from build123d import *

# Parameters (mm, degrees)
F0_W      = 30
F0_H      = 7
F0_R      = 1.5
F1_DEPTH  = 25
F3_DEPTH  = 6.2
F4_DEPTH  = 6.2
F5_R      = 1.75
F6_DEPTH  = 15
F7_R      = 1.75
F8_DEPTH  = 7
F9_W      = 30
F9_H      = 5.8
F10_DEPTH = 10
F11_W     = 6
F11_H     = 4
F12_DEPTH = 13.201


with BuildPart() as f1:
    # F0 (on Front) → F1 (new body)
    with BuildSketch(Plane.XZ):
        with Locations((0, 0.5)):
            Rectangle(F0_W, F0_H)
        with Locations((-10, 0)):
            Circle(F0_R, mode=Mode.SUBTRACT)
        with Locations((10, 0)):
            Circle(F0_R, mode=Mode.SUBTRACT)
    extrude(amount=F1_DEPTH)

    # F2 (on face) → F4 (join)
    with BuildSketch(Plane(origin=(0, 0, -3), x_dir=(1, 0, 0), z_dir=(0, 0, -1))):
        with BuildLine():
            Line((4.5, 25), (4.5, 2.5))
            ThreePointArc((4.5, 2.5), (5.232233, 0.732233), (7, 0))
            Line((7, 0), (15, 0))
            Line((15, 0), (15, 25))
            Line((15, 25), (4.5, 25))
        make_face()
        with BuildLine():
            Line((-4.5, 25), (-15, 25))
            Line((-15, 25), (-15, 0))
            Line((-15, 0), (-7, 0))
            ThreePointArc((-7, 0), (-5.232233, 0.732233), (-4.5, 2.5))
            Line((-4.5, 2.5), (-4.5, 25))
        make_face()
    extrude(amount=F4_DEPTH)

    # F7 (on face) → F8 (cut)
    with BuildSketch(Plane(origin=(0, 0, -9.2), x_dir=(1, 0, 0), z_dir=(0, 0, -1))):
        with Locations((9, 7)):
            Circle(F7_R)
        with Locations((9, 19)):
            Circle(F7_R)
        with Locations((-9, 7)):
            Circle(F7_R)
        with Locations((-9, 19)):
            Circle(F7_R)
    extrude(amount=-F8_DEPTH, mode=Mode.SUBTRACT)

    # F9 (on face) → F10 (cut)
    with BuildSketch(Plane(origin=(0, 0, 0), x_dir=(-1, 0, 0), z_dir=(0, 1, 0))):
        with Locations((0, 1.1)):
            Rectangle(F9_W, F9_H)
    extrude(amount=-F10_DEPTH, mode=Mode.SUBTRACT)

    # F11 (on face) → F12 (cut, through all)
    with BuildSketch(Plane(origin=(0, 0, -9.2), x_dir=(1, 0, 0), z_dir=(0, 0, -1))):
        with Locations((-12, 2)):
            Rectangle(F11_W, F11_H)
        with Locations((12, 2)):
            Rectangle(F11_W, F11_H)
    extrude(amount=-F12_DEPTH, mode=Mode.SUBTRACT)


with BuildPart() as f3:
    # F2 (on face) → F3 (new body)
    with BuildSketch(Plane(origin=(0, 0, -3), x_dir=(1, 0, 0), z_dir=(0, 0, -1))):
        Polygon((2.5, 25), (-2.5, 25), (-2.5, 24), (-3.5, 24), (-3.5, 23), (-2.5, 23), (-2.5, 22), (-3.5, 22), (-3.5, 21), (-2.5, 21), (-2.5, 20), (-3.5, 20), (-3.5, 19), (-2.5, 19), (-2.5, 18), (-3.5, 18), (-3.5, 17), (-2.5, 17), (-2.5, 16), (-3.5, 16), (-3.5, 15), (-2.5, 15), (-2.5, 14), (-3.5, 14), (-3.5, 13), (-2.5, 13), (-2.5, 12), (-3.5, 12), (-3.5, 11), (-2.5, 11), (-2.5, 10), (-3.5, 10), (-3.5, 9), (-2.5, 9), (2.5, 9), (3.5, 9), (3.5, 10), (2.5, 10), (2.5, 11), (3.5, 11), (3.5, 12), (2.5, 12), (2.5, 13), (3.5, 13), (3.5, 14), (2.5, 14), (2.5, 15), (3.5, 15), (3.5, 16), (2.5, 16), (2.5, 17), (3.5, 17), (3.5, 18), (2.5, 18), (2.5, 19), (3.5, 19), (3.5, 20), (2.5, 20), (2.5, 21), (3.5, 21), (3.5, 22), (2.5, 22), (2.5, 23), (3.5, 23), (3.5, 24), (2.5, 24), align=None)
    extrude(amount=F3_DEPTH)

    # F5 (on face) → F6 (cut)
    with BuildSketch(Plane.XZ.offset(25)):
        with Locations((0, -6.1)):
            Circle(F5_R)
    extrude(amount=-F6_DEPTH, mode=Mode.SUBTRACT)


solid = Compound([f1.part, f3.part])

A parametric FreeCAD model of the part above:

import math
import FreeCAD as App
import Part
import Sketcher
from FreeCAD import Vector


def add_polygon(sketch, points):
    """Adds a closed chain of lines whose ends are joined by coincident constraints."""
    first, n = sketch.GeometryCount, len(points)
    for a, b in zip(points, points[1:] + points[:1]):
        sketch.addGeometry(Part.LineSegment(App.Vector(*a, 0), App.Vector(*b, 0)), False)
    for i in range(n):
        sketch.addConstraint(Sketcher.Constraint("Coincident", first + i, 2, first + (i + 1) % n, 1))

doc = App.newDocument("Part")
params = doc.addObject("Spreadsheet::Sheet", "Params")
for row, (alias, value) in enumerate([
    ("sketch1_diameter", "3 mm"),
    ("sketch1_width", "30 mm"),
    ("sketch1_height", "7 mm"),
    ("pad1_length", "25 mm"),
    ("sketch2_radius", "2.5 mm"),
    ("sketch2_width", "8 mm"),
    ("sketch2_height", "25 mm"),
    ("pad2_length", "6.2 mm"),
    ("sketch3_diameter", "3.5 mm"),
    ("pocket1_length", "7 mm"),
    ("sketch4_width", "30 mm"),
    ("sketch4_height", "5.8 mm"),
    ("pocket2_length", "10 mm"),
    ("sketch5_width", "6 mm"),
    ("sketch5_height", "4 mm"),
    ("sketch6_width", "5 mm"),
    ("sketch6_width2", "1 mm"),
    ("pad3_length", "6.2 mm"),
    ("sketch7_diameter", "3.5 mm"),
    ("pocket4_length", "15 mm"),
], start=1):
    params.set(f"A{row}", alias)
    params.set(f"B{row}", "=" + value)
    params.setAlias(f"B{row}", alias)

body = doc.addObject("PartDesign::Body", "Body")

sketch1 = body.newObject("Sketcher::SketchObject", "Sketch")
sketch1.AttachmentSupport = (doc.getObject("XZ_Plane"), [""])
sketch1.MapMode = "FlatFace"
add_polygon(sketch1, [(-15, 4), (-15, -3), (15, -3), (15, 4)])
sketch1.addGeometry(Part.Circle(Vector(-10, 0, 0), Vector(0, 0, 1), 1.5), False)
sketch1.addGeometry(Part.Circle(Vector(10, 0, 0), Vector(0, 0, 1), 1.5), False)
sketch1.addConstraint([
    Sketcher.Constraint("Vertical", 0),
    Sketcher.Constraint("Horizontal", 1),
    Sketcher.Constraint("Vertical", 2),
    Sketcher.Constraint("Horizontal", 3),
    Sketcher.Constraint("Equal", 4, 5),
    Sketcher.Constraint("Symmetric", 4, 3, 5, 3, -1, 1),
    Sketcher.Constraint("PointOnObject", 4, 3, -1),
    Sketcher.Constraint("Diameter", 4, 3.0),
    Sketcher.Constraint("DistanceX", 1, 1, 1, 2, 30.0),
    Sketcher.Constraint("DistanceY", 0, 2, 0, 1, 7.0),
    Sketcher.Constraint("DistanceX", 4, 3, -1, 1, 10.0),
    Sketcher.Constraint("DistanceX", 0, 2, -1, 1, 15.0),
    Sketcher.Constraint("DistanceY", 0, 2, -1, 1, 3.0),
])
sketch1.setExpression("Constraints[11]", "Params.sketch1_diameter")
sketch1.setExpression("Constraints[12]", "Params.sketch1_width")
sketch1.setExpression("Constraints[13]", "Params.sketch1_height")
pad1 = body.newObject("PartDesign::Pad", "Pad")
pad1.Profile = sketch1
pad1.setExpression("Length", "Params.pad1_length")

sketch2 = body.newObject("Sketcher::SketchObject", "Sketch001")
sketch2.AttachmentSupport = (doc.getObject("XY_Plane"), [""])
sketch2.MapMode = "FlatFace"
sketch2.AttachmentOffset = App.Placement(Vector(0, 0, -3), App.Rotation())
sketch2.addGeometry([
    Part.LineSegment(Vector(4.5, -25, 0), Vector(4.5, -2.5, 0)),
    Part.ArcOfCircle(Part.Circle(Vector(7, -2.5, 0), Vector(0, 0, 1), 2.5), math.radians(90), math.radians(180)),
    Part.LineSegment(Vector(7, 0, 0), Vector(15, 0, 0)),
    Part.LineSegment(Vector(15, 0, 0), Vector(15, -25, 0)),
    Part.LineSegment(Vector(15, -25, 0), Vector(4.5, -25, 0)),
    Part.LineSegment(Vector(-4.5, -25, 0), Vector(-15, -25, 0)),
    Part.LineSegment(Vector(-15, -25, 0), Vector(-15, 0, 0)),
    Part.LineSegment(Vector(-15, 0, 0), Vector(-7, 0, 0)),
    Part.ArcOfCircle(Part.Circle(Vector(-7, -2.5, 0), Vector(0, 0, 1), 2.5), math.radians(0), math.radians(90)),
    Part.LineSegment(Vector(-4.5, -2.5, 0), Vector(-4.5, -25, 0)),
], False)
sketch2.addConstraint([
    Sketcher.Constraint("Tangent", 0, 2, 1, 2),
    Sketcher.Constraint("Tangent", 1, 1, 2, 1),
    Sketcher.Constraint("Coincident", 2, 2, 3, 1),
    Sketcher.Constraint("Coincident", 3, 2, 4, 1),
    Sketcher.Constraint("Coincident", 4, 2, 0, 1),
    Sketcher.Constraint("Coincident", 5, 2, 6, 1),
    Sketcher.Constraint("Coincident", 6, 2, 7, 1),
    Sketcher.Constraint("Tangent", 7, 2, 8, 2),
    Sketcher.Constraint("Tangent", 8, 1, 9, 1),
    Sketcher.Constraint("Coincident", 9, 2, 5, 1),
    Sketcher.Constraint("Vertical", 0),
    Sketcher.Constraint("Horizontal", 2),
    Sketcher.Constraint("Vertical", 3),
    Sketcher.Constraint("Horizontal", 4),
    Sketcher.Constraint("Horizontal", 5),
    Sketcher.Constraint("Vertical", 6),
    Sketcher.Constraint("Horizontal", 7),
    Sketcher.Constraint("Vertical", 9),
    Sketcher.Constraint("Equal", 1, 8),
    Sketcher.Constraint("Symmetric", 2, 2, 6, 2, -1, 1),
    Sketcher.Constraint("Symmetric", 1, 3, 8, 3, -2),
    Sketcher.Constraint("Horizontal", 4, 2, 5, 2),
    Sketcher.Constraint("Radius", 1, 2.5),
    Sketcher.Constraint("DistanceX", 2, 1, 2, 2, 8.0),
    Sketcher.Constraint("DistanceY", 3, 2, 3, 1, 25.0),
    Sketcher.Constraint("DistanceX", -1, 1, 1, 3, 7.0),
])
sketch2.setExpression("Constraints[22]", "Params.sketch2_radius")
sketch2.setExpression("Constraints[23]", "Params.sketch2_width")
sketch2.setExpression("Constraints[24]", "Params.sketch2_height")
pad2 = body.newObject("PartDesign::Pad", "Pad001")
pad2.Profile = sketch2
pad2.setExpression("Length", "Params.pad2_length")
pad2.Reversed = True

sketch3 = body.newObject("Sketcher::SketchObject", "Sketch002")
sketch3.AttachmentSupport = (doc.getObject("XY_Plane"), [""])
sketch3.MapMode = "FlatFace"
sketch3.AttachmentOffset = App.Placement(Vector(0, 0, -9.2), App.Rotation())
sketch3.addGeometry([
    Part.Circle(Vector(9, -7, 0), Vector(0, 0, 1), 1.8),
    Part.Circle(Vector(9, -19, 0), Vector(0, 0, 1), 1.8),
    Part.Circle(Vector(-9, -7, 0), Vector(0, 0, 1), 1.8),
    Part.Circle(Vector(-9, -19, 0), Vector(0, 0, 1), 1.8),
], False)
sketch3.addConstraint([
    Sketcher.Constraint("Equal", 0, 1),
    Sketcher.Constraint("Equal", 1, 2),
    Sketcher.Constraint("Equal", 2, 3),
    Sketcher.Constraint("Symmetric", 0, 3, 2, 3, -2),
    Sketcher.Constraint("Symmetric", 1, 3, 3, 3, -2),
    Sketcher.Constraint("Vertical", 0, 3, 1, 3),
    Sketcher.Constraint("Diameter", 0, 3.5),
    Sketcher.Constraint("DistanceX", -1, 1, 0, 3, 9.0),
    Sketcher.Constraint("DistanceY", 0, 3, -1, 1, 7.0),
    Sketcher.Constraint("DistanceY", 1, 3, -1, 1, 19.0),
])
sketch3.setExpression("Constraints[6]", "Params.sketch3_diameter")
pocket1 = body.newObject("PartDesign::Pocket", "Pocket")
pocket1.Profile = sketch3
pocket1.setExpression("Length", "Params.pocket1_length")
pocket1.Reversed = True

sketch4 = body.newObject("Sketcher::SketchObject", "Sketch003")
sketch4.AttachmentSupport = (doc.getObject("XZ_Plane"), [""])
sketch4.MapMode = "FlatFace"
add_polygon(sketch4, [(15, 4), (15, -2), (-15, -2), (-15, 4)])
sketch4.addConstraint([
    Sketcher.Constraint("Vertical", 0),
    Sketcher.Constraint("Horizontal", 1),
    Sketcher.Constraint("Vertical", 2),
    Sketcher.Constraint("Horizontal", 3),
    Sketcher.Constraint("DistanceX", 1, 2, 1, 1, 30.0),
    Sketcher.Constraint("DistanceY", 0, 2, 0, 1, 5.8),
    Sketcher.Constraint("DistanceX", -1, 1, 0, 2, 15.0),
    Sketcher.Constraint("DistanceY", -1, 1, 2, 2, 4.0),
])
sketch4.setExpression("Constraints[8]", "Params.sketch4_width")
sketch4.setExpression("Constraints[9]", "Params.sketch4_height")
pocket2 = body.newObject("PartDesign::Pocket", "Pocket001")
pocket2.Profile = sketch4
pocket2.setExpression("Length", "Params.pocket2_length")
pocket2.Reversed = True

sketch5 = body.newObject("Sketcher::SketchObject", "Sketch004")
sketch5.AttachmentSupport = (doc.getObject("XY_Plane"), [""])
sketch5.MapMode = "FlatFace"
sketch5.AttachmentOffset = App.Placement(Vector(0, 0, -9.2), App.Rotation())
add_polygon(sketch5, [(-15, -4), (-15, 0), (-9, 0), (-9, -4)])
add_polygon(sketch5, [(9, -4), (9, 0), (15, 0), (15, -4)])
sketch5.addConstraint([
    Sketcher.Constraint("Vertical", 0),
    Sketcher.Constraint("Horizontal", 1),
    Sketcher.Constraint("Vertical", 2),
    Sketcher.Constraint("Horizontal", 3),
    Sketcher.Constraint("Vertical", 4),
    Sketcher.Constraint("Horizontal", 5),
    Sketcher.Constraint("Vertical", 6),
    Sketcher.Constraint("Horizontal", 7),
    Sketcher.Constraint("Symmetric", 1, 2, 4, 2, -1, 1),
    Sketcher.Constraint("Symmetric", 0, 2, 5, 2, -2),
    Sketcher.Constraint("Horizontal", 3, 2, 6, 2),
    Sketcher.Constraint("DistanceX", 1, 1, 1, 2, 6.0),
    Sketcher.Constraint("DistanceY", 0, 1, 0, 2, 4.0),
    Sketcher.Constraint("DistanceX", 0, 2, -1, 1, 15.0),
])
sketch5.setExpression("Constraints[19]", "Params.sketch5_width")
sketch5.setExpression("Constraints[20]", "Params.sketch5_height")
pocket3 = body.newObject("PartDesign::Pocket", "Pocket002")
pocket3.Profile = sketch5
pocket3.Type = "ThroughAll"
pocket3.Reversed = True
body2 = doc.addObject("PartDesign::Body", "Body001")

sketch6 = body2.newObject("Sketcher::SketchObject", "Sketch005")
sketch6.AttachmentSupport = (doc.getObject("XY_Plane001"), [""])
sketch6.MapMode = "FlatFace"
sketch6.AttachmentOffset = App.Placement(Vector(0, 0, -3), App.Rotation())
add_polygon(sketch6, [(2.5, -25), (-2.5, -25), (-2.5, -24), (-3.5, -24), (-3.5, -23), (-2.5, -23), (-2.5, -22), (-3.5, -22), (-3.5, -21), (-2.5, -21), (-2.5, -20), (-3.5, -20), (-3.5, -19), (-2.5, -19), (-2.5, -18), (-3.5, -18), (-3.5, -17), (-2.5, -17), (-2.5, -16), (-3.5, -16), (-3.5, -15), (-2.5, -15), (-2.5, -14), (-3.5, -14), (-3.5, -13), (-2.5, -13), (-2.5, -12), (-3.5, -12), (-3.5, -11), (-2.5, -11), (-2.5, -10), (-3.5, -10), (-3.5, -9), (3.5, -9), (3.5, -10), (2.5, -10), (2.5, -11), (3.5, -11), (3.5, -12), (2.5, -12), (2.5, -13), (3.5, -13), (3.5, -14), (2.5, -14), (2.5, -15), (3.5, -15), (3.5, -16), (2.5, -16), (2.5, -17), (3.5, -17), (3.5, -18), (2.5, -18), (2.5, -19), (3.5, -19), (3.5, -20), (2.5, -20), (2.5, -21), (3.5, -21), (3.5, -22), (2.5, -22), (2.5, -23), (3.5, -23), (3.5, -24), (2.5, -24)])
sketch6.addConstraint([
    Sketcher.Constraint("Horizontal", 0),
    Sketcher.Constraint("Vertical", 1),
    Sketcher.Constraint("Horizontal", 2),
    Sketcher.Constraint("Vertical", 3),
    Sketcher.Constraint("Horizontal", 4),
    Sketcher.Constraint("Vertical", 5),
    Sketcher.Constraint("Horizontal", 6),
    Sketcher.Constraint("Vertical", 7),
    Sketcher.Constraint("Horizontal", 8),
    Sketcher.Constraint("Vertical", 9),
    Sketcher.Constraint("Horizontal", 10),
    Sketcher.Constraint("Vertical", 11),
    Sketcher.Constraint("Horizontal", 12),
    Sketcher.Constraint("Vertical", 13),
    Sketcher.Constraint("Horizontal", 14),
    Sketcher.Constraint("Vertical", 15),
    Sketcher.Constraint("Horizontal", 16),
    Sketcher.Constraint("Vertical", 17),
    Sketcher.Constraint("Horizontal", 18),
    Sketcher.Constraint("Vertical", 19),
    Sketcher.Constraint("Horizontal", 20),
    Sketcher.Constraint("Vertical", 21),
    Sketcher.Constraint("Horizontal", 22),
    Sketcher.Constraint("Vertical", 23),
    Sketcher.Constraint("Horizontal", 24),
    Sketcher.Constraint("Vertical", 25),
    Sketcher.Constraint("Horizontal", 26),
    Sketcher.Constraint("Vertical", 27),
    Sketcher.Constraint("Horizontal", 28),
    Sketcher.Constraint("Vertical", 29),
    Sketcher.Constraint("Horizontal", 30),
    Sketcher.Constraint("Vertical", 31),
    Sketcher.Constraint("Horizontal", 32),
    Sketcher.Constraint("Vertical", 33),
    Sketcher.Constraint("Horizontal", 34),
    Sketcher.Constraint("Vertical", 35),
    Sketcher.Constraint("Horizontal", 36),
    Sketcher.Constraint("Vertical", 37),
    Sketcher.Constraint("Horizontal", 38),
    Sketcher.Constraint("Vertical", 39),
    Sketcher.Constraint("Horizontal", 40),
    Sketcher.Constraint("Vertical", 41),
    Sketcher.Constraint("Horizontal", 42),
    Sketcher.Constraint("Vertical", 43),
    Sketcher.Constraint("Horizontal", 44),
    Sketcher.Constraint("Vertical", 45),
    Sketcher.Constraint("Horizontal", 46),
    Sketcher.Constraint("Vertical", 47),
    Sketcher.Constraint("Horizontal", 48),
    Sketcher.Constraint("Vertical", 49),
    Sketcher.Constraint("Horizontal", 50),
    Sketcher.Constraint("Vertical", 51),
    Sketcher.Constraint("Horizontal", 52),
    Sketcher.Constraint("Vertical", 53),
    Sketcher.Constraint("Horizontal", 54),
    Sketcher.Constraint("Vertical", 55),
    Sketcher.Constraint("Horizontal", 56),
    Sketcher.Constraint("Vertical", 57),
    Sketcher.Constraint("Horizontal", 58),
    Sketcher.Constraint("Vertical", 59),
    Sketcher.Constraint("Horizontal", 60),
    Sketcher.Constraint("Vertical", 61),
    Sketcher.Constraint("Horizontal", 62),
    Sketcher.Constraint("Vertical", 63),
    Sketcher.Constraint("Symmetric", 30, 2, 33, 2, -2),
    Sketcher.Constraint("Symmetric", 28, 2, 35, 2, -2),
    Sketcher.Constraint("Symmetric", 26, 2, 37, 2, -2),
    Sketcher.Constraint("Symmetric", 24, 2, 39, 2, -2),
    Sketcher.Constraint("Symmetric", 22, 2, 41, 2, -2),
    Sketcher.Constraint("Symmetric", 20, 2, 43, 2, -2),
    Sketcher.Constraint("Symmetric", 18, 2, 45, 2, -2),
    Sketcher.Constraint("Symmetric", 16, 2, 47, 2, -2),
    Sketcher.Constraint("Symmetric", 14, 2, 49, 2, -2),
    Sketcher.Constraint("Symmetric", 12, 2, 51, 2, -2),
    Sketcher.Constraint("Symmetric", 10, 2, 53, 2, -2),
    Sketcher.Constraint("Symmetric", 8, 2, 55, 2, -2),
    Sketcher.Constraint("Symmetric", 6, 2, 57, 2, -2),
    Sketcher.Constraint("Symmetric", 4, 2, 59, 2, -2),
    Sketcher.Constraint("Symmetric", 2, 2, 61, 2, -2),
    Sketcher.Constraint("Vertical", 1, 2, 4, 2),
    Sketcher.Constraint("Vertical", 3, 2, 6, 2),
    Sketcher.Constraint("Vertical", 5, 2, 8, 2),
    Sketcher.Constraint("Vertical", 7, 2, 10, 2),
    Sketcher.Constraint("Vertical", 9, 2, 12, 2),
    Sketcher.Constraint("Vertical", 11, 2, 14, 2),
    Sketcher.Constraint("Vertical", 13, 2, 16, 2),
    Sketcher.Constraint("Vertical", 15, 2, 18, 2),
    Sketcher.Constraint("Vertical", 17, 2, 20, 2),
    Sketcher.Constraint("Vertical", 19, 2, 22, 2),
    Sketcher.Constraint("Vertical", 21, 2, 24, 2),
    Sketcher.Constraint("Vertical", 23, 2, 26, 2),
    Sketcher.Constraint("Vertical", 25, 2, 28, 2),
    Sketcher.Constraint("Vertical", 27, 2, 30, 2),
    Sketcher.Constraint("Vertical", 59, 2, 62, 2),
    Sketcher.Constraint("Equal", 62, 1),
    Sketcher.Constraint("Equal", 1, 3),
    Sketcher.Constraint("Equal", 3, 5),
    Sketcher.Constraint("Equal", 5, 7),
    Sketcher.Constraint("Equal", 7, 9),
    Sketcher.Constraint("Equal", 9, 11),
    Sketcher.Constraint("Equal", 11, 13),
    Sketcher.Constraint("Equal", 13, 15),
    Sketcher.Constraint("Equal", 15, 17),
    Sketcher.Constraint("Equal", 17, 19),
    Sketcher.Constraint("Equal", 19, 21),
    Sketcher.Constraint("Equal", 21, 23),
    Sketcher.Constraint("Equal", 23, 25),
    Sketcher.Constraint("Equal", 25, 27),
    Sketcher.Constraint("Equal", 27, 29),
    Sketcher.Constraint("Equal", 29, 31),
    Sketcher.Constraint("DistanceX", 0, 2, 0, 1, 5.0),
    Sketcher.Constraint("DistanceX", 2, 2, 2, 1, 1.0),
    Sketcher.Constraint("DistanceY", 0, 2, -1, 1, 25.0),
])
sketch6.setExpression("Constraints[174]", "Params.sketch6_width")
sketch6.setExpression("Constraints[175]", "Params.sketch6_width2")
pad3 = body2.newObject("PartDesign::Pad", "Pad002")
pad3.Profile = sketch6
pad3.setExpression("Length", "Params.pad3_length")
pad3.Reversed = True

sketch7 = body2.newObject("Sketcher::SketchObject", "Sketch006")
sketch7.AttachmentSupport = (doc.getObject("XZ_Plane001"), [""])
sketch7.MapMode = "FlatFace"
sketch7.AttachmentOffset = App.Placement(Vector(0, 0, 25), App.Rotation())
sketch7.addGeometry(Part.Circle(Vector(0, -6.1, 0), Vector(0, 0, 1), 1.8), False)
sketch7.addConstraint([
    Sketcher.Constraint("PointOnObject", 0, 3, -2),
    Sketcher.Constraint("Diameter", 0, 3.5),
    Sketcher.Constraint("DistanceY", 0, 3, -1, 1, 6.1),
])
sketch7.setExpression("Constraints[1]", "Params.sketch7_diameter")
pocket4 = body2.newObject("PartDesign::Pocket", "Pocket003")
pocket4.Profile = sketch7
pocket4.setExpression("Length", "Params.pocket4_length")

doc.recompute()
